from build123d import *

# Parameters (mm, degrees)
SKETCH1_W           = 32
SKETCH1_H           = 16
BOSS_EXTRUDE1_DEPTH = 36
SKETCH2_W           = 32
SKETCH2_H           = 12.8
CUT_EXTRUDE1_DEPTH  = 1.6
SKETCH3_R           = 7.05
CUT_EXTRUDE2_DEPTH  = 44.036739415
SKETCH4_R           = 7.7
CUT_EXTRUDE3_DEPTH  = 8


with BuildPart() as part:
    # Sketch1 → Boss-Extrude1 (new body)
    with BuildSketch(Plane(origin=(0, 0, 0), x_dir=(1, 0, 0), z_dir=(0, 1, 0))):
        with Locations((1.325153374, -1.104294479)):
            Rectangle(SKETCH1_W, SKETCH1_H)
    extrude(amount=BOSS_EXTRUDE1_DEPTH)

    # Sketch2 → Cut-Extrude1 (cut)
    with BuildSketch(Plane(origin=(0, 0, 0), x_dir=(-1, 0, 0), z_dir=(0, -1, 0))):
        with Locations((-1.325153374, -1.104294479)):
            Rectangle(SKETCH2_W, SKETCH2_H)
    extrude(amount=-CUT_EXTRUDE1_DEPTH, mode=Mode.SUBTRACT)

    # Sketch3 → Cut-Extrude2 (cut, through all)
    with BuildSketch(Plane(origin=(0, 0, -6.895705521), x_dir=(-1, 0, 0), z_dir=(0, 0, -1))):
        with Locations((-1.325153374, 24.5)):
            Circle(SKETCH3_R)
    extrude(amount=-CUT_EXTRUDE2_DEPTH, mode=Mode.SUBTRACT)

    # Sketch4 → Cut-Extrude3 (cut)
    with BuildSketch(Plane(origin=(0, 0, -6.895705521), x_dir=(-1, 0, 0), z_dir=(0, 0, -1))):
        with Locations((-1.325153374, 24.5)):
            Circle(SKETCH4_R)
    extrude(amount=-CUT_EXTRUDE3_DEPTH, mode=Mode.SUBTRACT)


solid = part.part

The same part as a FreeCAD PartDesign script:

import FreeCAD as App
import Part
import Sketcher

V = App.Vector
Q = App.Units.Quantity


def add_polygon(sketch, points):
    """Adds a closed chain of lines whose ends are joined by coincident constraints."""
    first, n = sketch.GeometryCount, len(points)
    for a, b in zip(points, points[1:] + points[:1]):
        sketch.addGeometry(Part.LineSegment(App.Vector(*a, 0), App.Vector(*b, 0)), False)
    for i in range(n):
        sketch.addConstraint(Sketcher.Constraint("Coincident", first + i, 2, first + (i + 1) % n, 1))

doc = App.newDocument("Part")
params = doc.addObject("Spreadsheet::Sheet", "Params")
for row, (alias, value) in enumerate([
    ("sketch1_width", "32 mm"),
    ("sketch1_height", "16 mm"),
    ("pad1_length", "36 mm"),
    ("sketch2_width", "32 mm"),
    ("sketch2_height", "12.8 mm"),
    ("pocket1_length", "1.6 mm"),
    ("sketch3_diameter", "14.1 mm"),
    ("sketch4_diameter", "15.4 mm"),
    ("pocket3_length", "8 mm"),
], start=1):
    params.set(f"A{row}", alias)
    params.set(f"B{row}", "=" + value)
    params.setAlias(f"B{row}", alias)

body = doc.addObject("PartDesign::Body", "Body")

# Sketch on XZ plane
sketch1 = body.newObject("Sketcher::SketchObject", "Sketch")
sketch1.AttachmentSupport = (doc.getObject("XZ_Plane"), [""])
sketch1.MapMode = "FlatFace"
add_polygon(sketch1, [(-15, -7), (-15, 9), (17, 9), (17, -7)])  # lines 0-3
sketch1.addConstraint([
    Sketcher.Constraint("Vertical", 0),
    Sketcher.Constraint("Horizontal", 1),
    Sketcher.Constraint("Vertical", 2),
    Sketcher.Constraint("Horizontal", 3),
    Sketcher.Constraint("DistanceX", 1, 1, 1, 2, Q("32 mm")),
    Sketcher.Constraint("DistanceY", 0, 1, 0, 2, Q("16 mm")),
    Sketcher.Constraint("DistanceX", 0, 2, -1, 1, Q("14.674847 mm")),
    Sketcher.Constraint("DistanceY", -1, 1, 0, 2, Q("9.104294 mm")),
])
sketch1.setExpression("Constraints[8]", "Params.sketch1_width")
sketch1.setExpression("Constraints[9]", "Params.sketch1_height")
pad1 = body.newObject("PartDesign::Pad", "Pad")
pad1.Profile = sketch1
pad1.setExpression("Length", "Params.pad1_length")
pad1.Reversed = True

# Sketch on XZ plane
sketch2 = body.newObject("Sketcher::SketchObject", "Sketch001")
sketch2.AttachmentSupport = (doc.getObject("XZ_Plane"), [""])
sketch2.MapMode = "FlatFace"
add_polygon(sketch2, [(17, -5), (17, 8), (-15, 8), (-15, -5)])  # lines 0-3
sketch2.addConstraint([
    Sketcher.Constraint("Vertical", 0),
    Sketcher.Constraint("Horizontal", 1),
    Sketcher.Constraint("Vertical", 2),
    Sketcher.Constraint("Horizontal", 3),
    Sketcher.Constraint("DistanceX", 1, 2, 1, 1, Q("32 mm")),
    Sketcher.Constraint("DistanceY", 0, 1, 0, 2, Q("12.8 mm")),
    Sketcher.Constraint("DistanceX", -1, 1, 0, 2, Q("17.325153 mm")),
    Sketcher.Constraint("DistanceY", -1, 1, 0, 2, Q("7.504294 mm")),
])
sketch2.setExpression("Constraints[8]", "Params.sketch2_width")
sketch2.setExpression("Constraints[9]", "Params.sketch2_height")
pocket1 = body.newObject("PartDesign::Pocket", "Pocket")
pocket1.Profile = sketch2
pocket1.setExpression("Length", "Params.pocket1_length")

# Sketch on XY plane
sketch3 = body.newObject("Sketcher::SketchObject", "Sketch002")
sketch3.AttachmentSupport = (doc.getObject("XY_Plane"), [""])
sketch3.MapMode = "FlatFace"
sketch3.AttachmentOffset = App.Placement(V(0, 0, -6.895706), App.Rotation())
sketch3.addGeometry(Part.Circle(V(1, 24, 0), V(0, 0, 1), 7), False)
sketch3.addConstraint([
    Sketcher.Constraint("Diameter", 0, Q("14.1 mm")),
    Sketcher.Constraint("DistanceY", -1, 1, 0, 3, Q("24.5 mm")),
    Sketcher.Constraint("DistanceX", -1, 1, 0, 3, Q("1.325153 mm")),
])
sketch3.setExpression("Constraints[0]", "Params.sketch3_diameter")
pocket2 = body.newObject("PartDesign::Pocket", "Pocket001")
pocket2.Profile = sketch3
pocket2.Type = "ThroughAll"
pocket2.Reversed = True

# Sketch on XY plane
sketch4 = body.newObject("Sketcher::SketchObject", "Sketch003")
sketch4.AttachmentSupport = (doc.getObject("XY_Plane"), [""])
sketch4.MapMode = "FlatFace"
sketch4.AttachmentOffset = App.Placement(V(0, 0, -6.895706), App.Rotation())
sketch4.addGeometry(Part.Circle(V(1, 24, 0), V(0, 0, 1), 8), False)
sketch4.addConstraint([
    Sketcher.Constraint("Diameter", 0, Q("15.4 mm")),
    Sketcher.Constraint("DistanceY", -1, 1, 0, 3, Q("24.5 mm")),
    Sketcher.Constraint("DistanceX", -1, 1, 0, 3, Q("1.325153 mm")),
])
sketch4.setExpression("Constraints[0]", "Params.sketch4_diameter")
pocket3 = body.newObject("PartDesign::Pocket", "Pocket002")
pocket3.Profile = sketch4
pocket3.setExpression("Length", "Params.pocket3_length")
pocket3.Reversed = True

doc.recompute()
